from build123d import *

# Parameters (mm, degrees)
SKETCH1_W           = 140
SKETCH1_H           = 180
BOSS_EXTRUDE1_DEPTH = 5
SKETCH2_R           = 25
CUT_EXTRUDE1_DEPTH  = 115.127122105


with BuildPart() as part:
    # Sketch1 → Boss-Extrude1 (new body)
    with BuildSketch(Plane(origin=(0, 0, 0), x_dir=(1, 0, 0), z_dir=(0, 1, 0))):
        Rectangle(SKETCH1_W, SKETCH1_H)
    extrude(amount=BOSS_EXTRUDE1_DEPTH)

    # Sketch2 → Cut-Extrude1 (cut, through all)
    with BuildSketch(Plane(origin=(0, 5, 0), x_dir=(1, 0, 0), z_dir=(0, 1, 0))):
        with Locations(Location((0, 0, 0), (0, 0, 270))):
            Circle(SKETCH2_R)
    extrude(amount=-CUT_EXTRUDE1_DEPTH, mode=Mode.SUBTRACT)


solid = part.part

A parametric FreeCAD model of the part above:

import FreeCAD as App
import Part
import Sketcher
from FreeCAD import Vector
Q = App.Units.Quantity


def add_polygon(sketch, points):
    """Adds a closed chain of lines whose ends are joined by coincident constraints."""
    first, n = sketch.GeometryCount, len(points)
    for a, b in zip(points, points[1:] + points[:1]):
        sketch.addGeometry(Part.LineSegment(App.Vector(*a, 0), App.Vector(*b, 0)), False)
    for i in range(n):
        sketch.addConstraint(Sketcher.Constraint("Coincident", first + i, 2, first + (i + 1) % n, 1))

doc = App.newDocument("Part")
body = doc.addObject("PartDesign::Body", "Body")

sketch1 = body.newObject("Sketcher::SketchObject", "Sketch")
sketch1.AttachmentSupport = (doc.getObject("XZ_Plane"), [""])
sketch1.MapMode = "FlatFace"
add_polygon(sketch1, [(-70, -90), (-70, 90), (70, 90), (70, -90)])
sketch1.addConstraint([
    Sketcher.Constraint("Vertical", 0),
    Sketcher.Constraint("Horizontal", 1),
    Sketcher.Constraint("Vertical", 2),
    Sketcher.Constraint("Horizontal", 3),
    Sketcher.Constraint("Symmetric", 0, 2, 2, 2, -1, 1),
    Sketcher.Constraint("DistanceX", 1, 1, 1, 2, Q("140 mm")),
    Sketcher.Constraint("DistanceY", 0, 1, 0, 2, Q("180 mm")),
])
pad1 = body.newObject("PartDesign::Pad", "Pad")
pad1.Profile = sketch1
pad1.Length = 5
pad1.Reversed = True

sketch2 = body.newObject("Sketcher::SketchObject", "Sketch001")
sketch2.AttachmentSupport = (doc.getObject("XZ_Plane"), [""])
sketch2.MapMode = "FlatFace"
sketch2.AttachmentOffset = App.Placement(Vector(0, 0, -5), App.Rotation())
sketch2.addGeometry(Part.Circle(Vector(0, 0, 0), Vector(0, 0, 1), 25), False)
sketch2.addConstraint([
    Sketcher.Constraint("Coincident", 0, 3, -1, 1),
    Sketcher.Constraint("Diameter", 0, Q("50 mm")),
])
pocket1 = body.newObject("PartDesign::Pocket", "Pocket")
pocket1.Profile = sketch2
pocket1.Type = "ThroughAll"
pocket1.Reversed = True

doc.recompute()
